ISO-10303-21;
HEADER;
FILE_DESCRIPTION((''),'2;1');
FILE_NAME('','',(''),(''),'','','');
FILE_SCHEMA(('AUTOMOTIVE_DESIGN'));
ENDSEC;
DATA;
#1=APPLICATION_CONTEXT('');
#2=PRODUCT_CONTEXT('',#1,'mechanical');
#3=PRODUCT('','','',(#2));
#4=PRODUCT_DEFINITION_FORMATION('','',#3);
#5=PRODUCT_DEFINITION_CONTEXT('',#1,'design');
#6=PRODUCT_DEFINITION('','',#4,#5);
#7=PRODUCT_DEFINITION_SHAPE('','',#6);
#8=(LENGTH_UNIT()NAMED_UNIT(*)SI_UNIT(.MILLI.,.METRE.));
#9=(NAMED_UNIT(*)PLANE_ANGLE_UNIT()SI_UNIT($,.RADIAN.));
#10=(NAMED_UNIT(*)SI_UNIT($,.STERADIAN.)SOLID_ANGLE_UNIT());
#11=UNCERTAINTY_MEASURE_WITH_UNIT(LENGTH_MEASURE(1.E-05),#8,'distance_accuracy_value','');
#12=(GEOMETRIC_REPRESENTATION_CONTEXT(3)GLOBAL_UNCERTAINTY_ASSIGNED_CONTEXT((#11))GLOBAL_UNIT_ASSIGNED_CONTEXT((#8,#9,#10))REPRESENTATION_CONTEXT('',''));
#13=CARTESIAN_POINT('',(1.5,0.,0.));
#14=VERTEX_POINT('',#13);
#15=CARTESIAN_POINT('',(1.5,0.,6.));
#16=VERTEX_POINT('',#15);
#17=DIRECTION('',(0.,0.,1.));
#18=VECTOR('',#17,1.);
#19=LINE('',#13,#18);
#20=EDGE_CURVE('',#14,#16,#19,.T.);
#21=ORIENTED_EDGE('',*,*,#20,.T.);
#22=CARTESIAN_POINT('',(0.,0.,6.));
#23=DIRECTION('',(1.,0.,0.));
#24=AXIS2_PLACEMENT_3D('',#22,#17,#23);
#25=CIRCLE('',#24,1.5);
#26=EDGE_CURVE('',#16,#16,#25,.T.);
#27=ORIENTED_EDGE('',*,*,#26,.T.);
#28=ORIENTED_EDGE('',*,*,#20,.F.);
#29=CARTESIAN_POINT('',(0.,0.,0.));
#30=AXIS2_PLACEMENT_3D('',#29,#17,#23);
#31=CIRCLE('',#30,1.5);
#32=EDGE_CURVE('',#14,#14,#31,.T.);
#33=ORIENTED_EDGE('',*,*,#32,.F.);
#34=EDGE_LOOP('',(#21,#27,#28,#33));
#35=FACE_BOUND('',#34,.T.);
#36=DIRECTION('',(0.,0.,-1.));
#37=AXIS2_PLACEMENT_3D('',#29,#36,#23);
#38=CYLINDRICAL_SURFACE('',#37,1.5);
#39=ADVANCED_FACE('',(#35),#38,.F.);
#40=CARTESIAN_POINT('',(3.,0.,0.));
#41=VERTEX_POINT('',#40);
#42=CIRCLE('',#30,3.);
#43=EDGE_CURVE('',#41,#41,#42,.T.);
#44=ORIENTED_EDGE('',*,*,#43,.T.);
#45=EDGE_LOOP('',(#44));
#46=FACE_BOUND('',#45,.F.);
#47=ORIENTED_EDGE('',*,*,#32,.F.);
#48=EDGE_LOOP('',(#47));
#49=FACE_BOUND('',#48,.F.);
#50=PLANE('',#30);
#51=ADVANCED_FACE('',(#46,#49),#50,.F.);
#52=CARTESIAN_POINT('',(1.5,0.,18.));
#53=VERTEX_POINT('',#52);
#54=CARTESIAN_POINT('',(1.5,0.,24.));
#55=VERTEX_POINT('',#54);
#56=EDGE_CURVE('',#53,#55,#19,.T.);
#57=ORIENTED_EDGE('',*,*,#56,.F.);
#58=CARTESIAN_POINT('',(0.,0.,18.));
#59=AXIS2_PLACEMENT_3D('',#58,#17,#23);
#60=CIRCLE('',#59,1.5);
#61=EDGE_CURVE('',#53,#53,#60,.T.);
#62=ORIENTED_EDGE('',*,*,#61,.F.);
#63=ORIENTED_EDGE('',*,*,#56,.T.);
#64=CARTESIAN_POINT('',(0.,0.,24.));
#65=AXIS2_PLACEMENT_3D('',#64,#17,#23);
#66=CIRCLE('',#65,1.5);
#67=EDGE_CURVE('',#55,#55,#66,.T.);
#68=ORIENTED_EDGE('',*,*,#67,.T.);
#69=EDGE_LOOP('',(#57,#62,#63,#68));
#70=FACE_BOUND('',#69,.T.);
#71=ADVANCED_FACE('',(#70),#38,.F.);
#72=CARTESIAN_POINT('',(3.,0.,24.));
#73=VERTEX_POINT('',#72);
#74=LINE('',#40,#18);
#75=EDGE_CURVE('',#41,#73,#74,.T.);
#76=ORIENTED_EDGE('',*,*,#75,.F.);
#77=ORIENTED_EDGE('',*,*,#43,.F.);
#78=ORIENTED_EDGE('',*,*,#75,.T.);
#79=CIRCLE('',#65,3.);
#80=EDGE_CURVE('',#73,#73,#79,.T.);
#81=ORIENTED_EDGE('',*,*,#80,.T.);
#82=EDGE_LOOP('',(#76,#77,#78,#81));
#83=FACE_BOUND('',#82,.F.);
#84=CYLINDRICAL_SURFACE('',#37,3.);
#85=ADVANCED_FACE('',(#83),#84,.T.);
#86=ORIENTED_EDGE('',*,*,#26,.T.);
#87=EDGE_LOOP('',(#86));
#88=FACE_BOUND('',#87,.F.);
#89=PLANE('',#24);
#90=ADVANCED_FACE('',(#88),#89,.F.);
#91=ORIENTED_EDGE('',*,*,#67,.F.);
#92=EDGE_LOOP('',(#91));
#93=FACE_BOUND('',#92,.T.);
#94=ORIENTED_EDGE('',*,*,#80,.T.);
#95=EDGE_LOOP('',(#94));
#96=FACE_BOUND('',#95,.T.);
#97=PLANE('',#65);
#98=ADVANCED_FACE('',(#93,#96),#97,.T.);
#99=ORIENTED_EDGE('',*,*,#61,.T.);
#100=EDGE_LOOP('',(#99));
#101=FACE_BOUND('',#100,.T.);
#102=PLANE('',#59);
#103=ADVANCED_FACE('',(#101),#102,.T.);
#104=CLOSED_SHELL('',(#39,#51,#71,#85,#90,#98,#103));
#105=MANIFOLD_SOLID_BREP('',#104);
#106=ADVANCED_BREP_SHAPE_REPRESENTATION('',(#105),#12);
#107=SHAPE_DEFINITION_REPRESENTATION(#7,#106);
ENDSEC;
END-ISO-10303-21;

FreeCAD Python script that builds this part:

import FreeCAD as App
import Part
import Sketcher
from FreeCAD import Vector
Q = App.Units.Quantity

doc = App.newDocument("Part")
body = doc.addObject("PartDesign::Body", "Body")

# Sketch on XY plane
sketch1 = doc.addObject("Sketcher::SketchObject", "Sketch")
body.addObject(sketch1)
sketch1.AttachmentSupport = (doc.XY_Plane, [""])
sketch1.MapMode = "FlatFace"
sketch1.addGeometry(Part.Circle(Vector(0, 0, 0), Vector(0, 0, 1), 3), False)
sketch1.addGeometry(Part.Circle(Vector(0, 0, 0), Vector(0, 0, 1), 1.5), False)
sketch1.addConstraint(Sketcher.Constraint("Coincident", 0, 3, -1, 1))
sketch1.addConstraint(Sketcher.Constraint("Coincident", 1, 3, -1, 1))
sketch1.addConstraint(Sketcher.Constraint("Diameter", 0, Q("6 mm")))
sketch1.addConstraint(Sketcher.Constraint("Diameter", 1, Q("3 mm")))
pad1 = doc.addObject("PartDesign::Pad", "Pad")
body.addObject(pad1)
pad1.Profile = sketch1
pad1.Length = 24

# Sketch on XY plane
sketch2 = doc.addObject("Sketcher::SketchObject", "Sketch001")
body.addObject(sketch2)
sketch2.AttachmentSupport = (doc.XY_Plane, [""])
sketch2.MapMode = "FlatFace"
sketch2.AttachmentOffset = App.Placement(Vector(0, 0, 18), App.Rotation())
sketch2.addGeometry(Part.Circle(Vector(0, 0, 0), Vector(0, 0, 1), 1.5), False)
sketch2.addConstraint(Sketcher.Constraint("Coincident", 0, 3, -1, 1))
sketch2.addConstraint(Sketcher.Constraint("Diameter", 0, Q("3 mm")))
pad2 = doc.addObject("PartDesign::Pad", "Pad001")
body.addObject(pad2)
pad2.Profile = sketch2
pad2.Length = 12
pad2.Reversed = True

doc.recompute()
